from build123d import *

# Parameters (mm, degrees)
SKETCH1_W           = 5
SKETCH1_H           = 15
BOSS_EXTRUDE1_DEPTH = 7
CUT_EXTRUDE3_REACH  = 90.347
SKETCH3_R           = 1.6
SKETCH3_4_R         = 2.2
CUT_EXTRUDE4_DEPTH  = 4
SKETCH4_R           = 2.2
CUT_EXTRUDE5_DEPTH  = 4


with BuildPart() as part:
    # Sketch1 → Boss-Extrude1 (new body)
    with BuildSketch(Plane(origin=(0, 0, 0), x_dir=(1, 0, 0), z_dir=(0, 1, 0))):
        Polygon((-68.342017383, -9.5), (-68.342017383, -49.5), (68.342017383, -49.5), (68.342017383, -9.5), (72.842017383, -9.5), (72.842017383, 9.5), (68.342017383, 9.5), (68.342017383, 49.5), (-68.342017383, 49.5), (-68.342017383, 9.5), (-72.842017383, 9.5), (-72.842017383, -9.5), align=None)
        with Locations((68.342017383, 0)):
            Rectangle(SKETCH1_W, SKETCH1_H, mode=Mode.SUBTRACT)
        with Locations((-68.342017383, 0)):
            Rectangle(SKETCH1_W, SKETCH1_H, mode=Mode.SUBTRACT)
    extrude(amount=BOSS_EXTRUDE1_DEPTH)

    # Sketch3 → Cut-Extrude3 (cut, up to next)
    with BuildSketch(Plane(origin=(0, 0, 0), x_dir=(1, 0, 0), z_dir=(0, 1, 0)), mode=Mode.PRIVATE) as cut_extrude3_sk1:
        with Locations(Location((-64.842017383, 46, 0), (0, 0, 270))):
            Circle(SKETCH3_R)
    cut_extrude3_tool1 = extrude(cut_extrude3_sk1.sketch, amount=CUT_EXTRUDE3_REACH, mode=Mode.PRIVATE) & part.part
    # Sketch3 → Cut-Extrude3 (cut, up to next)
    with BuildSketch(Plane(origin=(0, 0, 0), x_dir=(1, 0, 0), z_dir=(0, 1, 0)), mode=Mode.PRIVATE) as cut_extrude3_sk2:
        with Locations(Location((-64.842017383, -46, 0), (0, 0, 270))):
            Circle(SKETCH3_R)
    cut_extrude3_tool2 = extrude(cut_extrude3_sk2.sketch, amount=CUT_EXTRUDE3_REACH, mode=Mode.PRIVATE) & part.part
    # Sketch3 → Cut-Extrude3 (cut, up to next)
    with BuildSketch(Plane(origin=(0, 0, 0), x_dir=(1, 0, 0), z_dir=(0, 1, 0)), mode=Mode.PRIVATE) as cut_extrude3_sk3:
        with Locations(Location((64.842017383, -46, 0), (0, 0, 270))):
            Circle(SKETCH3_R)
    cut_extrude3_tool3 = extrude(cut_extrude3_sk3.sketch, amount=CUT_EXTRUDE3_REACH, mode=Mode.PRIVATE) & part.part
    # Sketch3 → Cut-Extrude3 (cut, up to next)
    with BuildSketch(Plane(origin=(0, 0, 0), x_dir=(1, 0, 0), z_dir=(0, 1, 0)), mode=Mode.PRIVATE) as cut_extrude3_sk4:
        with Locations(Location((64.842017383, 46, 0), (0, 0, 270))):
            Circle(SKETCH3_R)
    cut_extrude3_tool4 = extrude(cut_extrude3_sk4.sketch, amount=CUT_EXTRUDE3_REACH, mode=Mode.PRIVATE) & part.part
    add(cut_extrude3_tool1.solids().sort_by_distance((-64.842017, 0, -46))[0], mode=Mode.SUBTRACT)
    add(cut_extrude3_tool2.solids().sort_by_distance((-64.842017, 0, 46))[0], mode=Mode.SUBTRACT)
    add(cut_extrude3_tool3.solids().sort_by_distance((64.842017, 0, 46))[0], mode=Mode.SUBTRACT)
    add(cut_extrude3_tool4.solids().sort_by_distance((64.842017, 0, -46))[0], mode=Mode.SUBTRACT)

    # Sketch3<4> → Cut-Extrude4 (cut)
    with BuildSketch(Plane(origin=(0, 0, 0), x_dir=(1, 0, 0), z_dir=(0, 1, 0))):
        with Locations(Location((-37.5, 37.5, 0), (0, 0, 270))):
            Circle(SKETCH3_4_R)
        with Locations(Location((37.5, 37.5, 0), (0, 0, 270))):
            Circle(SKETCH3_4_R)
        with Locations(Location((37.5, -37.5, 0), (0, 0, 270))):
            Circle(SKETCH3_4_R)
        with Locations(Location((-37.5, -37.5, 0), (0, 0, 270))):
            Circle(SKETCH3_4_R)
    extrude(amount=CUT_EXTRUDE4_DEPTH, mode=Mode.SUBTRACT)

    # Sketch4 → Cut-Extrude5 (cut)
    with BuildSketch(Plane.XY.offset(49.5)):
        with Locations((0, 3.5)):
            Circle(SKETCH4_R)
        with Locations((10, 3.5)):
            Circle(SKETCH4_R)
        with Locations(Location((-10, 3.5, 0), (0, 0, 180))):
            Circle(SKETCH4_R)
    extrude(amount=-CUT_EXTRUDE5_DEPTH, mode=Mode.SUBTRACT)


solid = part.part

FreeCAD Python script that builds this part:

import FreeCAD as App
import Part
import Sketcher
from FreeCAD import Vector
Q = App.Units.Quantity


def add_polygon(sketch, points):
    """Adds a closed chain of lines whose ends are joined by coincident constraints."""
    first, n = sketch.GeometryCount, len(points)
    for a, b in zip(points, points[1:] + points[:1]):
        sketch.addGeometry(Part.LineSegment(App.Vector(*a, 0), App.Vector(*b, 0)), False)
    for i in range(n):
        sketch.addConstraint(Sketcher.Constraint("Coincident", first + i, 2, first + (i + 1) % n, 1))

doc = App.newDocument("Part")
body = doc.addObject("PartDesign::Body", "Body")

sketch1 = body.newObject("Sketcher::SketchObject", "Sketch")
sketch1.AttachmentSupport = (doc.getObject("XZ_Plane"), [""])
sketch1.MapMode = "FlatFace"
add_polygon(sketch1, [(-68.342017, 9.5), (-68.342017, 49.5), (68.342017, 49.5), (68.342017, 9.5), (72.842017, 9.5), (72.842017, -9.5), (68.342017, -9.5), (68.342017, -49.5), (-68.342017, -49.5), (-68.342017, -9.5), (-72.842017, -9.5), (-72.842017, 9.5)])
add_polygon(sketch1, [(-65.842017, 7.5), (-70.842017, 7.5), (-70.842017, -7.5), (-65.842017, -7.5)])
add_polygon(sketch1, [(70.842017, 7.5), (65.842017, 7.5), (65.842017, -7.5), (70.842017, -7.5)])
sketch1.addConstraint([
    Sketcher.Constraint("Vertical", 0),
    Sketcher.Constraint("Horizontal", 1),
    Sketcher.Constraint("Vertical", 2),
    Sketcher.Constraint("Horizontal", 3),
    Sketcher.Constraint("Vertical", 4),
    Sketcher.Constraint("Horizontal", 5),
    Sketcher.Constraint("Vertical", 6),
    Sketcher.Constraint("Horizontal", 7),
    Sketcher.Constraint("Vertical", 8),
    Sketcher.Constraint("Horizontal", 9),
    Sketcher.Constraint("Vertical", 10),
    Sketcher.Constraint("Horizontal", 11),
    Sketcher.Constraint("Horizontal", 12),
    Sketcher.Constraint("Vertical", 13),
    Sketcher.Constraint("Horizontal", 14),
    Sketcher.Constraint("Vertical", 15),
    Sketcher.Constraint("Horizontal", 16),
    Sketcher.Constraint("Vertical", 17),
    Sketcher.Constraint("Horizontal", 18),
    Sketcher.Constraint("Vertical", 19),
    Sketcher.Constraint("Symmetric", 0, 2, 6, 2, -1, 1),
    Sketcher.Constraint("Symmetric", 2, 2, 8, 2, -1, 1),
    Sketcher.Constraint("Symmetric", 4, 2, 10, 2, -1, 1),
    Sketcher.Constraint("Symmetric", 14, 2, 16, 2, -1, 1),
    Sketcher.Constraint("Symmetric", 12, 2, 18, 2, -1, 1),
    Sketcher.Constraint("Symmetric", 5, 2, 8, 2, -2),
    Sketcher.Constraint("Horizontal", 15, 2, 16, 2),
    Sketcher.Constraint("DistanceX", 12, 2, 12, 1, Q("5 mm")),
    Sketcher.Constraint("DistanceY", 0, 1, 0, 2, Q("40 mm")),
    Sketcher.Constraint("DistanceY", 4, 2, 4, 1, Q("19 mm")),
    Sketcher.Constraint("DistanceY", 13, 2, 13, 1, Q("15 mm")),
    Sketcher.Constraint("DistanceX", 3, 1, 3, 2, Q("4.5 mm")),
    Sketcher.Constraint("DistanceX", 10, 2, 12, 2, Q("2 mm")),
    Sketcher.Constraint("DistanceX", 1, 1, 1, 2, Q("136.684035 mm")),
])
pad1 = body.newObject("PartDesign::Pad", "Pad")
pad1.Profile = sketch1
pad1.Length = 7
pad1.Reversed = True

sketch2 = body.newObject("Sketcher::SketchObject", "Sketch001")
sketch2.AttachmentSupport = (doc.getObject("XZ_Plane"), [""])
sketch2.MapMode = "FlatFace"
sketch2.addGeometry(Part.Circle(Vector(-64.842017, -46, 0), Vector(0, 0, 1), 1.6), False)
sketch2.addConstraint([
    Sketcher.Constraint("Diameter", 0, Q("3.2 mm")),
    Sketcher.Constraint("DistanceY", 0, 3, -1, 1, Q("46 mm")),
    Sketcher.Constraint("DistanceX", 0, 3, -1, 1, Q("64.842017 mm")),
])
pocket1 = body.newObject("PartDesign::Pocket", "Pocket")
pocket1.Profile = sketch2
pocket1.Type = "UpToFirst"

sketch3 = body.newObject("Sketcher::SketchObject", "Sketch002")
sketch3.AttachmentSupport = (doc.getObject("XZ_Plane"), [""])
sketch3.MapMode = "FlatFace"
sketch3.addGeometry(Part.Circle(Vector(-64.842017, 46, 0), Vector(0, 0, 1), 1.6), False)
sketch3.addConstraint([
    Sketcher.Constraint("Diameter", 0, Q("3.2 mm")),
    Sketcher.Constraint("DistanceY", -1, 1, 0, 3, Q("46 mm")),
    Sketcher.Constraint("DistanceX", 0, 3, -1, 1, Q("64.842017 mm")),
])
pocket2 = body.newObject("PartDesign::Pocket", "Pocket001")
pocket2.Profile = sketch3
pocket2.Type = "UpToFirst"

sketch4 = body.newObject("Sketcher::SketchObject", "Sketch003")
sketch4.AttachmentSupport = (doc.getObject("XZ_Plane"), [""])
sketch4.MapMode = "FlatFace"
sketch4.addGeometry(Part.Circle(Vector(64.842017, 46, 0), Vector(0, 0, 1), 1.6), False)
sketch4.addConstraint([
    Sketcher.Constraint("Diameter", 0, Q("3.2 mm")),
    Sketcher.Constraint("DistanceY", -1, 1, 0, 3, Q("46 mm")),
    Sketcher.Constraint("DistanceX", -1, 1, 0, 3, Q("64.842017 mm")),
])
pocket3 = body.newObject("PartDesign::Pocket", "Pocket002")
pocket3.Profile = sketch4
pocket3.Type = "UpToFirst"

sketch5 = body.newObject("Sketcher::SketchObject", "Sketch004")
sketch5.AttachmentSupport = (doc.getObject("XZ_Plane"), [""])
sketch5.MapMode = "FlatFace"
sketch5.addGeometry(Part.Circle(Vector(64.842017, -46, 0), Vector(0, 0, 1), 1.6), False)
sketch5.addConstraint([
    Sketcher.Constraint("Diameter", 0, Q("3.2 mm")),
    Sketcher.Constraint("DistanceY", 0, 3, -1, 1, Q("46 mm")),
    Sketcher.Constraint("DistanceX", -1, 1, 0, 3, Q("64.842017 mm")),
])
pocket4 = body.newObject("PartDesign::Pocket", "Pocket003")
pocket4.Profile = sketch5
pocket4.Type = "UpToFirst"

sketch6 = body.newObject("Sketcher::SketchObject", "Sketch005")
sketch6.AttachmentSupport = (doc.getObject("XZ_Plane"), [""])
sketch6.MapMode = "FlatFace"
sketch6.addGeometry([
    Part.Circle(Vector(-37.5, -37.5, 0), Vector(0, 0, 1), 2.2),
    Part.Circle(Vector(37.5, -37.5, 0), Vector(0, 0, 1), 2.2),
    Part.Circle(Vector(37.5, 37.5, 0), Vector(0, 0, 1), 2.2),
    Part.Circle(Vector(-37.5, 37.5, 0), Vector(0, 0, 1), 2.2),
], False)
sketch6.addConstraint([
    Sketcher.Constraint("Equal", 0, 1),
    Sketcher.Constraint("Equal", 1, 2),
    Sketcher.Constraint("Equal", 2, 3),
    Sketcher.Constraint("Symmetric", 0, 3, 2, 3, -1, 1),
    Sketcher.Constraint("Symmetric", 1, 3, 3, 3, -1, 1),
    Sketcher.Constraint("Symmetric", 0, 3, 1, 3, -2),
    Sketcher.Constraint("Diameter", 0, Q("4.4 mm")),
    Sketcher.Constraint("DistanceX", 0, 3, 1, 3, Q("75 mm")),
    Sketcher.Constraint("DistanceY", 1, 3, 2, 3, Q("75 mm")),
])
pocket5 = body.newObject("PartDesign::Pocket", "Pocket004")
pocket5.Profile = sketch6
pocket5.Length = 4

sketch7 = body.newObject("Sketcher::SketchObject", "Sketch006")
sketch7.AttachmentSupport = (doc.getObject("XY_Plane"), [""])
sketch7.MapMode = "FlatFace"
sketch7.AttachmentOffset = App.Placement(Vector(0, 0, 49.5), App.Rotation())
sketch7.addGeometry([
    Part.Circle(Vector(0, 3.5, 0), Vector(0, 0, 1), 2.2),
    Part.Circle(Vector(10, 3.5, 0), Vector(0, 0, 1), 2.2),
    Part.Circle(Vector(-10, 3.5, 0), Vector(0, 0, 1), 2.2),
], False)
sketch7.addConstraint([
    Sketcher.Constraint("Equal", 0, 1),
    Sketcher.Constraint("Equal", 1, 2),
    Sketcher.Constraint("Symmetric", 1, 3, 2, 3, -2),
    Sketcher.Constraint("PointOnObject", 0, 3, -2),
    Sketcher.Constraint("Horizontal", 0, 3, 1, 3),
    Sketcher.Constraint("Diameter", 0, Q("4.4 mm")),
    Sketcher.Constraint("DistanceX", -1, 1, 1, 3, Q("10 mm")),
    Sketcher.Constraint("DistanceY", -1, 1, 0, 3, Q("3.5 mm")),
])
pocket6 = body.newObject("PartDesign::Pocket", "Pocket005")
pocket6.Profile = sketch7
pocket6.Length = 4

doc.recompute()
